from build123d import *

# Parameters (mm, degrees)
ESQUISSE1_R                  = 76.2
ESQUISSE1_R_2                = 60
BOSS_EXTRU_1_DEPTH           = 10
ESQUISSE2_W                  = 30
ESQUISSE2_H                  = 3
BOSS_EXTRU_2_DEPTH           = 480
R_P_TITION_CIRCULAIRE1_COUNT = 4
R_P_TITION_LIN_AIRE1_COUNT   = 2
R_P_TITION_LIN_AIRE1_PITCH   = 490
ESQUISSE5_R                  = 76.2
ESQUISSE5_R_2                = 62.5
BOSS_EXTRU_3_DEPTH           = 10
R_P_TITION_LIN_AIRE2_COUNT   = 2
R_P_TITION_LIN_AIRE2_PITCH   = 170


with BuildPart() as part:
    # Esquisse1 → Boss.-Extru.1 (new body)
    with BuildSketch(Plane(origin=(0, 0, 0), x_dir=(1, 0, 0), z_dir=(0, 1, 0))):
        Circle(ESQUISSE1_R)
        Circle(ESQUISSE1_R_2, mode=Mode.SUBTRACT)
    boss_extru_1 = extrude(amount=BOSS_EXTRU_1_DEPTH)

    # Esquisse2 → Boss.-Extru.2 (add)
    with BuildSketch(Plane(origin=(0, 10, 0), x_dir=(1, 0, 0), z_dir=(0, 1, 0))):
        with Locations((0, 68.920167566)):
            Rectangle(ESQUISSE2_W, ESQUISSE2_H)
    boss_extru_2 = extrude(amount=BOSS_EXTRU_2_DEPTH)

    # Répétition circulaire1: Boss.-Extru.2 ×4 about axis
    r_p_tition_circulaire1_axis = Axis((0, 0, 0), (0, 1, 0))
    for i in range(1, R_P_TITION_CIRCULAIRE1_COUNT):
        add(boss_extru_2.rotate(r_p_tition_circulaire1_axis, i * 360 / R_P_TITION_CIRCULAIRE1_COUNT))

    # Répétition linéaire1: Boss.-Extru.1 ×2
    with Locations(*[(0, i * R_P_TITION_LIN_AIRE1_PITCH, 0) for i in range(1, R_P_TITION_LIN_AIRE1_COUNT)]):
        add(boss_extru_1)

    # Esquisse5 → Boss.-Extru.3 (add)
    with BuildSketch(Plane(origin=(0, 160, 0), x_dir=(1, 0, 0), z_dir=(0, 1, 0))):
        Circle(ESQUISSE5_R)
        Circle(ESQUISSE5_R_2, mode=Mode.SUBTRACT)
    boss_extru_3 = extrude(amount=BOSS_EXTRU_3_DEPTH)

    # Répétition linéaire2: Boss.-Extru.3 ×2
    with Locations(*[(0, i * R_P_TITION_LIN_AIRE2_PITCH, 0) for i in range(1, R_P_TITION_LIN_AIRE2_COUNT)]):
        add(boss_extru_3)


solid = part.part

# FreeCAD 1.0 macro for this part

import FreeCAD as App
import Part
import Sketcher


def add_polygon(sketch, points):
    """Adds a closed chain of lines whose ends are joined by coincident constraints."""
    first, n = sketch.GeometryCount, len(points)
    for a, b in zip(points, points[1:] + points[:1]):
        sketch.addGeometry(Part.LineSegment(App.Vector(*a, 0), App.Vector(*b, 0)), False)
    for i in range(n):
        sketch.addConstraint(Sketcher.Constraint("Coincident", first + i, 2, first + (i + 1) % n, 1))

doc = App.newDocument("Part")
body = doc.addObject("PartDesign::Body", "Body")

# Sketch on XZ plane
sketch1 = body.newObject("Sketcher::SketchObject", "Sketch")
sketch1.AttachmentSupport = (doc.getObject("XZ_Plane"), [""])
sketch1.MapMode = "FlatFace"
sketch1.addGeometry([
    Part.Circle(App.Vector(0, 0, 0), App.Vector(0, 0, 1), 76),
    Part.Circle(App.Vector(0, 0, 0), App.Vector(0, 0, 1), 60),
], False)
sketch1.addConstraint([
    Sketcher.Constraint("Coincident", 0, 3, -1, 1),
    Sketcher.Constraint("Coincident", 1, 3, -1, 1),
    Sketcher.Constraint("Diameter", 1, 120.0),
    Sketcher.Constraint("Diameter", 0, 152.4),
])
pad1 = body.newObject("PartDesign::Pad", "Pad")
pad1.Profile = sketch1
pad1.Length = 10
pad1.Reversed = True

# Sketch on XZ plane
sketch2 = body.newObject("Sketcher::SketchObject", "Sketch001")
sketch2.AttachmentSupport = (doc.getObject("XZ_Plane"), [""])
sketch2.MapMode = "FlatFace"
sketch2.AttachmentOffset = App.Placement(App.Vector(0, 0, -10), App.Rotation())
add_polygon(sketch2, [(-15, -70.4), (-15, -67.4), (15, -67.4), (15, -70.4)])  # lines 0-3
sketch2.addConstraint([
    Sketcher.Constraint("Vertical", 0),
    Sketcher.Constraint("Horizontal", 1),
    Sketcher.Constraint("Vertical", 2),
    Sketcher.Constraint("Horizontal", 3),
    Sketcher.Constraint("DistanceX", 1, 1, 1, 2, 30.0),
    Sketcher.Constraint("DistanceY", 0, 1, 0, 2, 3.0),
    Sketcher.Constraint("DistanceX", 0, 2, -1, 1, 15.0),
    Sketcher.Constraint("DistanceY", 0, 2, -1, 1, 67.420168),
])
pad2 = body.newObject("PartDesign::Pad", "Pad001")
pad2.Profile = sketch2
pad2.Length = 480
pad2.Reversed = True
doc.recompute()

polarpattern = body.newObject("PartDesign::PolarPattern", "PolarPattern")
polarpattern.Originals = [pad2]
polarpattern.Axis = (doc.getObject("Y_Axis"), [""])
polarpattern.Angle = 360
polarpattern.Occurrences = 4
body.Tip = polarpattern
doc.recompute()

linearpattern = body.newObject("PartDesign::LinearPattern", "LinearPattern")
linearpattern.Originals = [pad1]
linearpattern.Direction = (doc.getObject("Y_Axis"), [""])
linearpattern.Mode = "offset"
linearpattern.Offset = 490
linearpattern.Occurrences = 2
body.Tip = linearpattern

# Sketch on XZ plane
sketch3 = body.newObject("Sketcher::SketchObject", "Sketch002")
sketch3.AttachmentSupport = (doc.getObject("XZ_Plane"), [""])
sketch3.MapMode = "FlatFace"
sketch3.AttachmentOffset = App.Placement(App.Vector(0, 0, -160), App.Rotation())
sketch3.addGeometry([
    Part.Circle(App.Vector(0, 0, 0), App.Vector(0, 0, 1), 76),
    Part.Circle(App.Vector(0, 0, 0), App.Vector(0, 0, 1), 62),
], False)
sketch3.addConstraint([
    Sketcher.Constraint("Coincident", 0, 3, -1, 1),
    Sketcher.Constraint("Coincident", 1, 3, -1, 1),
    Sketcher.Constraint("Diameter", 1, 125.0),
    Sketcher.Constraint("Diameter", 0, 152.4),
])
pad3 = body.newObject("PartDesign::Pad", "Pad002")
pad3.Profile = sketch3
pad3.Length = 10
pad3.Reversed = True
doc.recompute()

linearpattern2 = body.newObject("PartDesign::LinearPattern", "LinearPattern001")
linearpattern2.Originals = [pad3]
linearpattern2.Direction = (doc.getObject("Y_Axis"), [""])
linearpattern2.Mode = "offset"
linearpattern2.Offset = 170
linearpattern2.Occurrences = 2
body.Tip = linearpattern2

doc.recompute()
